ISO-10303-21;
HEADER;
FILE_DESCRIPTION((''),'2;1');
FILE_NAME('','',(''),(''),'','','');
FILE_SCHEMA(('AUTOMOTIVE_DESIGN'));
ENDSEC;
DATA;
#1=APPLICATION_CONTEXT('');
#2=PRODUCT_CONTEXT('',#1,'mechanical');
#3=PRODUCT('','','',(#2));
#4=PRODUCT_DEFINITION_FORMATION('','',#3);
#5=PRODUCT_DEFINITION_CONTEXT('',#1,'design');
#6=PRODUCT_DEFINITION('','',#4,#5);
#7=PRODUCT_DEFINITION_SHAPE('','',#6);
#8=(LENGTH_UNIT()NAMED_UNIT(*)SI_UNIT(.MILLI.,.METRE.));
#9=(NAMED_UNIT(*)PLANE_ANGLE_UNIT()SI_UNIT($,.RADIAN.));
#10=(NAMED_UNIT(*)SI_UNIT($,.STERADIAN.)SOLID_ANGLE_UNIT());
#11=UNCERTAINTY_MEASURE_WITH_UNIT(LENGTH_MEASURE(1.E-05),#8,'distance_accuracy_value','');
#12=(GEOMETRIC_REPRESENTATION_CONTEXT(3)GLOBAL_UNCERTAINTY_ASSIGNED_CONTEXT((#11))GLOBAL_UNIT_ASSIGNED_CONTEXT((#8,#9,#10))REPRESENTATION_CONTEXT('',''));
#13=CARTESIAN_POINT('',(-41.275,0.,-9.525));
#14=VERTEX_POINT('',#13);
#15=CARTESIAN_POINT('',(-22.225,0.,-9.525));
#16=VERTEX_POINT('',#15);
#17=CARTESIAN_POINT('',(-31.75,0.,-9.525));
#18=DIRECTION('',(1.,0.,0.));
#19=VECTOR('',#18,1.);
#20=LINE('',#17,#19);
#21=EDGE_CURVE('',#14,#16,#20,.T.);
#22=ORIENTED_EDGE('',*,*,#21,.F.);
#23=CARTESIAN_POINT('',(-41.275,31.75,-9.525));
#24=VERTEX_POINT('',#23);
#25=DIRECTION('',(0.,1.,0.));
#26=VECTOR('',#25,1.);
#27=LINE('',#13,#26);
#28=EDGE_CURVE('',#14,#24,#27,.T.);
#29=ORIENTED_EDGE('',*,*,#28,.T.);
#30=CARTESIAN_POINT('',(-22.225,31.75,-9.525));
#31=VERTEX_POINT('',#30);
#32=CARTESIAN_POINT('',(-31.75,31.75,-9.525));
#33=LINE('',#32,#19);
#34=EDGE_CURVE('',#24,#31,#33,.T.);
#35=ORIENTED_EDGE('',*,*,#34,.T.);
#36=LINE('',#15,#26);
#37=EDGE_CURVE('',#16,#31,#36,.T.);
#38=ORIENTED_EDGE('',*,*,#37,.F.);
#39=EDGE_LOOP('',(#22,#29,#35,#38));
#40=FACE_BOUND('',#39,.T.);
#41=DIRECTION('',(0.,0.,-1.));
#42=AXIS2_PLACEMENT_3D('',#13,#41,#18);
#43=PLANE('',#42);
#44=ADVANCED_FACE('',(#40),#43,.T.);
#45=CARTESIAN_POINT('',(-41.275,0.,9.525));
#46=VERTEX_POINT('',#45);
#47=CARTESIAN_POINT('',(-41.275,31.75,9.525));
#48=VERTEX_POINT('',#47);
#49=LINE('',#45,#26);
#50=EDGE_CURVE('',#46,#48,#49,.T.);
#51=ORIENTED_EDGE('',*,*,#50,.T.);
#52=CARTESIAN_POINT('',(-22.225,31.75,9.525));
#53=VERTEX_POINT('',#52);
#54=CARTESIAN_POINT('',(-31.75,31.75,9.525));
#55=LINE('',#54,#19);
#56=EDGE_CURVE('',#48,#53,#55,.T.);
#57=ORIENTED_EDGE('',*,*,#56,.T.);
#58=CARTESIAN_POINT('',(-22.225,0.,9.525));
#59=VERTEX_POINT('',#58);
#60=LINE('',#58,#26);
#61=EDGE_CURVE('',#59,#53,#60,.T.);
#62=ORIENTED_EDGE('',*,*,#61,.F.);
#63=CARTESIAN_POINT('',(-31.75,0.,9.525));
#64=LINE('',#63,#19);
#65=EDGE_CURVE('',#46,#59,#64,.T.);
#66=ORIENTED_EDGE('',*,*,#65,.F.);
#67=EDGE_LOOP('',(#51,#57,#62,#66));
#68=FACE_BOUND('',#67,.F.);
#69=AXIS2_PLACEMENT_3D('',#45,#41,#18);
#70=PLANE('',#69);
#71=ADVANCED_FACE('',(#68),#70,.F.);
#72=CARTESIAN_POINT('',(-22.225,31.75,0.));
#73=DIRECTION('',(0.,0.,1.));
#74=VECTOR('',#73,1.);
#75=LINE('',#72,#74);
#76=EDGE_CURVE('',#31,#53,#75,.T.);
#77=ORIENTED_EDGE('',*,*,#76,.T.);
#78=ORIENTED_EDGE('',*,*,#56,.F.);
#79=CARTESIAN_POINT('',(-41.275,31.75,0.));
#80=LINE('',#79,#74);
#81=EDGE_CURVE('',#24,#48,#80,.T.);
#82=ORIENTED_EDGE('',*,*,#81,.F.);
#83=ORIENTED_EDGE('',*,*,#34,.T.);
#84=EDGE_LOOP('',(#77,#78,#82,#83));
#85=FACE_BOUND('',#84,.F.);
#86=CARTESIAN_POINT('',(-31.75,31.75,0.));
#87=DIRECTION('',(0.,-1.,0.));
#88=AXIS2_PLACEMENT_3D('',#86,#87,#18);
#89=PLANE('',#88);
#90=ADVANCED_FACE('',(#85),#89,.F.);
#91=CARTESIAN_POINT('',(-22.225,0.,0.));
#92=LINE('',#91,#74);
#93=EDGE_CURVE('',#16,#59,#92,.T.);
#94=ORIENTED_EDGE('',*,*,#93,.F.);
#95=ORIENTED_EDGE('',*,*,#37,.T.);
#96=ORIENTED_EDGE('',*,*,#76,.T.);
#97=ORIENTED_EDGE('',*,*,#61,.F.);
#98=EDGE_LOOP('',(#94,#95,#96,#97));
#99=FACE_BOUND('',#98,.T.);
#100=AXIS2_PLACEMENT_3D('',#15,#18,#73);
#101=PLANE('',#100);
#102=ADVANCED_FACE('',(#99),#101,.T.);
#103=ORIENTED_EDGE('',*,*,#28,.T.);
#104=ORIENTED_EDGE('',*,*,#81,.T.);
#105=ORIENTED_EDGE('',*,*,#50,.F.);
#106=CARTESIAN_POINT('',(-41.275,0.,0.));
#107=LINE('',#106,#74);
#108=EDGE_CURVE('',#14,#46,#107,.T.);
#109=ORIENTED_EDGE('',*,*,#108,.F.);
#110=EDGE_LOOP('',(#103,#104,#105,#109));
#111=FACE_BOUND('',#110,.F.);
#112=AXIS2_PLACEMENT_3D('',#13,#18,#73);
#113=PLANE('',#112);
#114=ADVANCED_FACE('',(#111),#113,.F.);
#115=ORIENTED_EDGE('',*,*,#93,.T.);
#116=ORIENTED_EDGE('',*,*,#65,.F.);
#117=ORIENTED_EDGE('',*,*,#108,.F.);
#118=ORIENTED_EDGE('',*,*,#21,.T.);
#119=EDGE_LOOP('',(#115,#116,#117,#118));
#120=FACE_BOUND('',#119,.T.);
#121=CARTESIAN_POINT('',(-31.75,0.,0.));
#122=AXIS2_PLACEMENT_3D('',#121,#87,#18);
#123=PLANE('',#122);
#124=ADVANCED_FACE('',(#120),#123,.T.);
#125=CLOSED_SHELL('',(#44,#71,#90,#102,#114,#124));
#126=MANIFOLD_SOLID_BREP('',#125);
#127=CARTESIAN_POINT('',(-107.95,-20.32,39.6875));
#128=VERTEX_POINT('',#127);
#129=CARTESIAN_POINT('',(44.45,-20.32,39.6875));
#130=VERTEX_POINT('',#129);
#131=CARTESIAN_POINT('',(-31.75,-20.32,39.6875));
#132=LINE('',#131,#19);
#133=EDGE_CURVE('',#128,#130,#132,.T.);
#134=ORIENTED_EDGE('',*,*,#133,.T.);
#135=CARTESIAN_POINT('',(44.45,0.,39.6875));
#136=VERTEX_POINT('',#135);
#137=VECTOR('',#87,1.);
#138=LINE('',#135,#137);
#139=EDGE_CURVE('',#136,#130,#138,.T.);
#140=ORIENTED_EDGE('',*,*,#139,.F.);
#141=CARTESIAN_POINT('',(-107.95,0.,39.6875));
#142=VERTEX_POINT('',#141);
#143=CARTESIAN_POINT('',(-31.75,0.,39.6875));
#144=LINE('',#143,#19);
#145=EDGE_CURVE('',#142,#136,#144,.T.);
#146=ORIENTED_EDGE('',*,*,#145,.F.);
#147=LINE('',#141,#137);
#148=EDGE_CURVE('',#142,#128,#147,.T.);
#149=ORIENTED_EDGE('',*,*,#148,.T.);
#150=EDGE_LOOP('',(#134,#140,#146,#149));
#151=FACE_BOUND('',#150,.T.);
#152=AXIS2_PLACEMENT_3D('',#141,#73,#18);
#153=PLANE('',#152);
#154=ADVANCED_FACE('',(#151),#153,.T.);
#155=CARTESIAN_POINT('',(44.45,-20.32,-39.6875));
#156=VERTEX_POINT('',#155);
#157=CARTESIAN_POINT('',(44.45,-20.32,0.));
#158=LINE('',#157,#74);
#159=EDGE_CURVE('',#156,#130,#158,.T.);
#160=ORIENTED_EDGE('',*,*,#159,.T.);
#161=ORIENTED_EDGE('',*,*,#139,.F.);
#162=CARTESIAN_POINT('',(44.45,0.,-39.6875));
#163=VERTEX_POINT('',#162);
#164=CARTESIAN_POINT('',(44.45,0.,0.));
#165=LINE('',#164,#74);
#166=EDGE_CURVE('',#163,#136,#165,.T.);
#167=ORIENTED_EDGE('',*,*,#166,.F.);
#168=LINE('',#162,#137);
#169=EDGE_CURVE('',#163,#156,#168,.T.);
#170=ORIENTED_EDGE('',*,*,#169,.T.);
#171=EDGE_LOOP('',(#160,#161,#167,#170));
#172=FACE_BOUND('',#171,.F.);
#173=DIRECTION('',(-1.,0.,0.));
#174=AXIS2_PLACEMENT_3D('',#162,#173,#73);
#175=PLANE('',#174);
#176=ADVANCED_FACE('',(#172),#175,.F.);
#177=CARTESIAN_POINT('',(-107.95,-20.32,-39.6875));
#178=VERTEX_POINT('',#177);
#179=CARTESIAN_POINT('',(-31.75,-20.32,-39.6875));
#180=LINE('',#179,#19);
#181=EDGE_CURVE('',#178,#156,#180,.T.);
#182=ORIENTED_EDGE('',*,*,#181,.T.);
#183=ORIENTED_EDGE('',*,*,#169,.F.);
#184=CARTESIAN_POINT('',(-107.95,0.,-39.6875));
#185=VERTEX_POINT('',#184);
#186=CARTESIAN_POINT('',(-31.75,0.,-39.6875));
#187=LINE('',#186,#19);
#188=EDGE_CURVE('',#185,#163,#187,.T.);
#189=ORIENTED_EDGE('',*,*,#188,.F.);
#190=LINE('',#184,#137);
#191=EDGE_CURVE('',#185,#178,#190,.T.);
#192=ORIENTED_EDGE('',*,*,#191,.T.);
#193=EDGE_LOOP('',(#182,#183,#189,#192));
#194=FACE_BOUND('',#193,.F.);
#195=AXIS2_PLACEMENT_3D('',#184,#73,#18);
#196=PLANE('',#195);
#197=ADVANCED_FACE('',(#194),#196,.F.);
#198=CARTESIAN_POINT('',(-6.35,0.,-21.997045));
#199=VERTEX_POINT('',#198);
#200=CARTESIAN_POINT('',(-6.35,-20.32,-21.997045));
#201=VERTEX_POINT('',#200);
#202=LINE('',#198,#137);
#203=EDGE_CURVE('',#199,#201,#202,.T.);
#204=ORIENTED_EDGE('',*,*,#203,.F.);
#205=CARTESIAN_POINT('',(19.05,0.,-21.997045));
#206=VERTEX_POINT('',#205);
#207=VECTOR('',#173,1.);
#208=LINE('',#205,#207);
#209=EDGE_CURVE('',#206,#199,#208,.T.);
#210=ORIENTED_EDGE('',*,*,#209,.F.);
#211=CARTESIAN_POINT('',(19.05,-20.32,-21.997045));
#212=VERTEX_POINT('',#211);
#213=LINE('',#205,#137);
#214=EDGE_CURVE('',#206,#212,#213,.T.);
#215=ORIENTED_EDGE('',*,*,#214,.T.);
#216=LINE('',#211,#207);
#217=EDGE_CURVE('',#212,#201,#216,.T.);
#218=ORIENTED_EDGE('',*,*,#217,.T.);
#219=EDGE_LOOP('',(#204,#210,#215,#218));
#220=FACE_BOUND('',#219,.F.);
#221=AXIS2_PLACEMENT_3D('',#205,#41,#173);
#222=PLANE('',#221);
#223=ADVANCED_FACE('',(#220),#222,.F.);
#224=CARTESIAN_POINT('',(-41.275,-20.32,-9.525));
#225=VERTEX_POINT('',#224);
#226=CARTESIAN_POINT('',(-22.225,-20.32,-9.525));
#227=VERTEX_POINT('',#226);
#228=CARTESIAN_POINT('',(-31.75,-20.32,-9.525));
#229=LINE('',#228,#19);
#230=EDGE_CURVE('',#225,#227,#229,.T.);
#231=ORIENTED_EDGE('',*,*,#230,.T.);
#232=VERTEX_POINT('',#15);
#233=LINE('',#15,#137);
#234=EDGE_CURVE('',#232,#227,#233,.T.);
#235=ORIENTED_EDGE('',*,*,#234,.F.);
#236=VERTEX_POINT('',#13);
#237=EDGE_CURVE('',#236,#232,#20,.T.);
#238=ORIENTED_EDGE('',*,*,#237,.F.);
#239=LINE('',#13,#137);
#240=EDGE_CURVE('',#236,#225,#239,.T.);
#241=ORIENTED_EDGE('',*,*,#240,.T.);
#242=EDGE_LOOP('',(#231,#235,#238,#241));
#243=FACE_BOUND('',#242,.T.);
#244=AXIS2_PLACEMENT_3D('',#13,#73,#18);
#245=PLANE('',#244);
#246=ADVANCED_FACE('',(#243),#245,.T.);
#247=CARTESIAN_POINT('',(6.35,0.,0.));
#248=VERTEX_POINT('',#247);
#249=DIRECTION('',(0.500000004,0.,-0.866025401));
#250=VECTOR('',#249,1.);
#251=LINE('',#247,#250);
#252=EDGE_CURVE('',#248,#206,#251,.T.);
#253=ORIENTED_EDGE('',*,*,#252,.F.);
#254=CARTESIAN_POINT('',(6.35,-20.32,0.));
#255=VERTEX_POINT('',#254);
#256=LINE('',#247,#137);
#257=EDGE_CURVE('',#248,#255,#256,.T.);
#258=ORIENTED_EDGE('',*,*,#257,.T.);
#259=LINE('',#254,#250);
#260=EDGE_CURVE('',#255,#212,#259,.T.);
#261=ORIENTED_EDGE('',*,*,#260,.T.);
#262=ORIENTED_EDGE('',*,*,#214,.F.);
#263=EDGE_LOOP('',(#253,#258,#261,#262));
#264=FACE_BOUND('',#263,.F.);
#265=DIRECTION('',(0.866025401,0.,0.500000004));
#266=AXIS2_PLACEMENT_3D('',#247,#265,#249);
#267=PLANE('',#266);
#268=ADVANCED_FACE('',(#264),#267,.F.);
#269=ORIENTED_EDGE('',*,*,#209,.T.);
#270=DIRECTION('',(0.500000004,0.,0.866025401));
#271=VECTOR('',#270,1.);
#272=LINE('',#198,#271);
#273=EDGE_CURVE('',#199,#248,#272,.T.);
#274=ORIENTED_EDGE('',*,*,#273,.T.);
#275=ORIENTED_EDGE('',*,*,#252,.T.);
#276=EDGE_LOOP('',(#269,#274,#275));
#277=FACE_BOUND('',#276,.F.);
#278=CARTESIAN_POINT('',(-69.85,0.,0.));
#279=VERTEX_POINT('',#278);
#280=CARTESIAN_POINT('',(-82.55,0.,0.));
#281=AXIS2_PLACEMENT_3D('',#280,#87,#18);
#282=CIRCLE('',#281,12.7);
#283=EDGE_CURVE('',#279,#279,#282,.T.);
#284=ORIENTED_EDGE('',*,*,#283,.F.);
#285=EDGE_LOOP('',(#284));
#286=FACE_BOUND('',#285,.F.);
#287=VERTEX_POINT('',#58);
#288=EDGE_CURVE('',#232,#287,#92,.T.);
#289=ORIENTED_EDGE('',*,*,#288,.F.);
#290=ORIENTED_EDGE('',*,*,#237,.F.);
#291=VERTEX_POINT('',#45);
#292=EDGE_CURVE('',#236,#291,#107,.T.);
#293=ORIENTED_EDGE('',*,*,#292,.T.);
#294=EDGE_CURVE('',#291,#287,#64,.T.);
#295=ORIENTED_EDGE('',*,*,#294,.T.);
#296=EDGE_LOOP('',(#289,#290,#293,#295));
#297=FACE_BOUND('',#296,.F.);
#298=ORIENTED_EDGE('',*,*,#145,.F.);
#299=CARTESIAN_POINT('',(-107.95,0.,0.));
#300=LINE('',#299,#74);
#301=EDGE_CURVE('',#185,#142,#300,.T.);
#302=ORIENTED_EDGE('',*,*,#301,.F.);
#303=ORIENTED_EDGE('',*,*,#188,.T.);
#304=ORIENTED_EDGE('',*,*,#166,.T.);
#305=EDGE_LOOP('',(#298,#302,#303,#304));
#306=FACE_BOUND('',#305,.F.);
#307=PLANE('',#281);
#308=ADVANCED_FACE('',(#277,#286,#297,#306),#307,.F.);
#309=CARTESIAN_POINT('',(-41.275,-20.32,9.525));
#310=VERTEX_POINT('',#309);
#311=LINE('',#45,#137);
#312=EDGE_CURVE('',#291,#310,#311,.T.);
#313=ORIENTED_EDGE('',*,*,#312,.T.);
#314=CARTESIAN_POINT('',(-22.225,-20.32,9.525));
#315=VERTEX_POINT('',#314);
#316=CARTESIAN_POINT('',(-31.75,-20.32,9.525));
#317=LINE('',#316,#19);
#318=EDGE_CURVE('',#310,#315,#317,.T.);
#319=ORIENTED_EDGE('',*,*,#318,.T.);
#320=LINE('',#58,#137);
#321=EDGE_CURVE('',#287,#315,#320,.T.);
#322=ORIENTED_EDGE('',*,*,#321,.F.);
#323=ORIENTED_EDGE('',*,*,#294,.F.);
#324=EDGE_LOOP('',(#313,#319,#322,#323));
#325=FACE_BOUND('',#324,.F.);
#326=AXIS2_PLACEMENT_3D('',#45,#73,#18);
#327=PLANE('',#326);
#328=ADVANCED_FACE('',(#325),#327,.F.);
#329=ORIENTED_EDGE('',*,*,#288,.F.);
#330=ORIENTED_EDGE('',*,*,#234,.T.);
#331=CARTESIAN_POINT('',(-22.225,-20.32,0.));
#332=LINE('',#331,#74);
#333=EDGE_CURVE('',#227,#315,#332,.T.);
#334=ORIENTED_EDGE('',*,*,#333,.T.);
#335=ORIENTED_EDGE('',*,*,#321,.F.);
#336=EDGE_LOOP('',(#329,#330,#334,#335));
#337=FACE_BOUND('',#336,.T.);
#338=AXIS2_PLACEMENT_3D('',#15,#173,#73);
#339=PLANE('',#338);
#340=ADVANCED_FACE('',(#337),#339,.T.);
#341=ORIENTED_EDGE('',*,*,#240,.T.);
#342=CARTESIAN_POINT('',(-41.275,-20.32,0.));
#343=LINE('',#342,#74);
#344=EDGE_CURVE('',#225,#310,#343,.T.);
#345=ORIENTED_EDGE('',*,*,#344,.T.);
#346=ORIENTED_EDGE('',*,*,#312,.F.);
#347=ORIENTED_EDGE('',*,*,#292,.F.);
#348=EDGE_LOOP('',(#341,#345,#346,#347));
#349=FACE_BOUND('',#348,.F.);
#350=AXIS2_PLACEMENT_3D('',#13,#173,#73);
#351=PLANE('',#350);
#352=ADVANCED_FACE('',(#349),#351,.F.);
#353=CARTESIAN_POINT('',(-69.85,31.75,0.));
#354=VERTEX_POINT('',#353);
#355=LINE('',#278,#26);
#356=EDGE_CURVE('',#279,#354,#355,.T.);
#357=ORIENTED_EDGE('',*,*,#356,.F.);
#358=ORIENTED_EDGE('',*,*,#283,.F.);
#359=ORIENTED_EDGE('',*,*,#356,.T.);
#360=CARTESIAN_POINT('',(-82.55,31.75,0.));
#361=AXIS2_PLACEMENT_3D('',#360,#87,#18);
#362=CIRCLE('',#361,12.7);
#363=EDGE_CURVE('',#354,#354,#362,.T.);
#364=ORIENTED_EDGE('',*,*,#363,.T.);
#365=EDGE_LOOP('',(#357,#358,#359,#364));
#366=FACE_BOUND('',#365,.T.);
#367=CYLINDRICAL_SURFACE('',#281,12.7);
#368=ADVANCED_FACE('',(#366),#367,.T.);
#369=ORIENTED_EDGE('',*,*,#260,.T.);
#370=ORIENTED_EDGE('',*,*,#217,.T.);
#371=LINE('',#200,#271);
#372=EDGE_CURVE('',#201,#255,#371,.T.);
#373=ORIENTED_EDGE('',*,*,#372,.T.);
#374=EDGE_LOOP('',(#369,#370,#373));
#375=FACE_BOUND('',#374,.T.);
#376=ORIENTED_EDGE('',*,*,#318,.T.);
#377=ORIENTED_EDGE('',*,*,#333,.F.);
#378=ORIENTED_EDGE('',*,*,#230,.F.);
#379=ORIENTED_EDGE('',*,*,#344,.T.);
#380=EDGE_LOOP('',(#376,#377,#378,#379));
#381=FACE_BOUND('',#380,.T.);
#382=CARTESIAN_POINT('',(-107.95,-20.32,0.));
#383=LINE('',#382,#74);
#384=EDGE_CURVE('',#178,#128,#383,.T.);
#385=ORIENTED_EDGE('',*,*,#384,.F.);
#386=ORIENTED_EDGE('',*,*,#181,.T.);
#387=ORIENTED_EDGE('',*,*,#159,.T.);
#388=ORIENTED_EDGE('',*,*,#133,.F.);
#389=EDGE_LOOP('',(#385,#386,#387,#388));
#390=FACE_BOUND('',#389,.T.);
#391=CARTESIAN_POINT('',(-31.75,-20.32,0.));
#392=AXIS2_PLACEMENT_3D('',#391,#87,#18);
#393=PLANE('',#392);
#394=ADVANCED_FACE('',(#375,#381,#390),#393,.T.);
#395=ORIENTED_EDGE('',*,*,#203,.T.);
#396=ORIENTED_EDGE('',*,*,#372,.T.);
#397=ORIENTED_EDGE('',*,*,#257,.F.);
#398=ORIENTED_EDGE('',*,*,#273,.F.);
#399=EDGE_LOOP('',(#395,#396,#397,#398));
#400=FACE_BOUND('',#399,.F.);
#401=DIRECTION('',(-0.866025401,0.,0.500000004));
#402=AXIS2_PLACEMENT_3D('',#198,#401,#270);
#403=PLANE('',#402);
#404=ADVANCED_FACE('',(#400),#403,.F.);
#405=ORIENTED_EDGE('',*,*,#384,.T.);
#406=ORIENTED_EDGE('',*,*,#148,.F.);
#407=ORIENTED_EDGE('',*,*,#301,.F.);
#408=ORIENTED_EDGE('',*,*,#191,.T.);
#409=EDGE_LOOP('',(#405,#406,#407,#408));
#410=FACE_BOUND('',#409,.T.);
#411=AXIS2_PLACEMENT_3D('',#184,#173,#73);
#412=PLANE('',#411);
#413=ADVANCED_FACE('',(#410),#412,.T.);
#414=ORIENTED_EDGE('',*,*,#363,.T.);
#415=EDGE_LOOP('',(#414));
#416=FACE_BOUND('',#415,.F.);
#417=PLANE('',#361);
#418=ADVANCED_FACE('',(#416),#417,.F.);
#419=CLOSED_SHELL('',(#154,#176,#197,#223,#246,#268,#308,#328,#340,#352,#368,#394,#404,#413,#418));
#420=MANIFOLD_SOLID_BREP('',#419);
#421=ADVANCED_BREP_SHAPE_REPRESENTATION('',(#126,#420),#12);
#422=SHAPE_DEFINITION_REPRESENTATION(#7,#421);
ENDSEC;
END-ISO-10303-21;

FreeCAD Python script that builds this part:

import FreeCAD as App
import Part
import Sketcher
Q = App.Units.Quantity


def add_polygon(sketch, points):
    """Adds a closed chain of lines whose ends are joined by coincident constraints."""
    first, n = sketch.GeometryCount, len(points)
    for a, b in zip(points, points[1:] + points[:1]):
        sketch.addGeometry(Part.LineSegment(App.Vector(*a, 0), App.Vector(*b, 0)), False)
    for i in range(n):
        sketch.addConstraint(Sketcher.Constraint("Coincident", first + i, 2, first + (i + 1) % n, 1))

doc = App.newDocument("Part")
body = doc.addObject("PartDesign::Body", "Body")
body.AllowCompound = True

# Sketch on XZ plane
sketch1 = doc.addObject("Sketcher::SketchObject", "Sketch")
body.addObject(sketch1)
sketch1.AttachmentSupport = (doc.XZ_Plane, [""])
sketch1.MapMode = "FlatFace"
add_polygon(sketch1, [(-108, 40), (-108, -40), (44, -40), (44, 40)])  # lines 0-3
add_polygon(sketch1, [(19, -22), (-6, -22), (6, 0)])  # lines 4-6
sketch1.addGeometry(Part.Circle(App.Vector(-83, 0, 0), App.Vector(0, 0, 1), 13), False)  # 7
add_polygon(sketch1, [(-22, -10), (-41, -10), (-41, 10), (-22, 10)])  # lines 8-11
sketch1.addConstraint([
    Sketcher.Constraint("Vertical", 0),
    Sketcher.Constraint("Horizontal", 1),
    Sketcher.Constraint("Vertical", 2),
    Sketcher.Constraint("Horizontal", 3),
    Sketcher.Constraint("Horizontal", 4),
    Sketcher.Constraint("Horizontal", 8),
    Sketcher.Constraint("Vertical", 9),
    Sketcher.Constraint("Horizontal", 10),
    Sketcher.Constraint("Vertical", 11),
    Sketcher.Constraint("PointOnObject", 7, 3, -1),
    Sketcher.Constraint("PointOnObject", 5, 2, -1),
    Sketcher.Constraint("Equal", 10, 9),
    Sketcher.Constraint("Equal", 5, 6),
    Sketcher.Constraint("Diameter", 7, Q("1 in")),
    Sketcher.Constraint("DistanceX", 1, 1, 1, 2, Q("6 in")),
    Sketcher.Constraint("DistanceX", 4, 2, 4, 1, Q("1 in")),
    Sketcher.Constraint("Distance", 5, Q("1 in")),
    Sketcher.Constraint("DistanceX", 0, 2, 7, 3, Q("1 in")),
    Sketcher.Constraint("DistanceX", 4, 2, 1, 2, Q("2 in")),
    Sketcher.Constraint("DistanceX", 8, 2, 8, 1, Q("0.75 in")),
    Sketcher.Constraint("DistanceY", 0, 2, 0, 1, Q("3.125 in")),
    Sketcher.Constraint("DistanceX", 7, 3, -1, 1, Q("3.25 in")),
    Sketcher.Constraint("DistanceY", 0, 2, -1, 1, Q("1.5625 in")),
    Sketcher.Constraint("DistanceX", 8, 2, -1, 1, Q("1.625 in")),
    Sketcher.Constraint("DistanceY", 8, 2, -1, 1, Q("0.375 in")),
])
pad1 = doc.addObject("PartDesign::Pad", "Pad")
body.addObject(pad1)
pad1.Profile = sketch1
pad1.Length = Q("0.8 in")

# Sketch on XZ plane
sketch2 = doc.addObject("Sketcher::SketchObject", "Sketch001")
body.addObject(sketch2)
sketch2.AttachmentSupport = (doc.XZ_Plane, [""])
sketch2.MapMode = "FlatFace"
add_polygon(sketch2, [(-41, 10), (-41, -10), (-22, -10), (-22, 10)])  # lines 0-3
sketch2.addConstraint([
    Sketcher.Constraint("Vertical", 0),
    Sketcher.Constraint("Horizontal", 1),
    Sketcher.Constraint("Vertical", 2),
    Sketcher.Constraint("Horizontal", 3),
    Sketcher.Constraint("Equal", 3, 0),
    Sketcher.Constraint("DistanceX", 1, 1, 1, 2, Q("0.75 in")),
    Sketcher.Constraint("DistanceX", 0, 2, -1, 1, Q("1.625 in")),
    Sketcher.Constraint("DistanceY", 0, 2, -1, 1, Q("0.375 in")),
])
pad2 = doc.addObject("PartDesign::Pad", "Pad001")
body.addObject(pad2)
pad2.Profile = sketch2
pad2.Length = Q("1.25 in")
pad2.Reversed = True

# Sketch on XZ plane
sketch3 = doc.addObject("Sketcher::SketchObject", "Sketch002")
body.addObject(sketch3)
sketch3.AttachmentSupport = (doc.XZ_Plane, [""])
sketch3.MapMode = "FlatFace"
sketch3.addGeometry(Part.Circle(App.Vector(-83, 0, 0), App.Vector(0, 0, 1), 13), False)
sketch3.addConstraint([
    Sketcher.Constraint("PointOnObject", 0, 3, -1),
    Sketcher.Constraint("Diameter", 0, Q("1 in")),
    Sketcher.Constraint("DistanceX", 0, 3, -1, 1, Q("3.25 in")),
])
pad3 = doc.addObject("PartDesign::Pad", "Pad002")
body.addObject(pad3)
pad3.Profile = sketch3
pad3.Length = Q("0.8 in")

# Sketch on XZ plane
sketch4 = doc.addObject("Sketcher::SketchObject", "Sketch003")
body.addObject(sketch4)
sketch4.AttachmentSupport = (doc.XZ_Plane, [""])
sketch4.MapMode = "FlatFace"
sketch4.addGeometry(Part.Circle(App.Vector(-83, 0, 0), App.Vector(0, 0, 1), 13), False)
sketch4.addConstraint([
    Sketcher.Constraint("PointOnObject", 0, 3, -1),
    Sketcher.Constraint("Diameter", 0, Q("1 in")),
    Sketcher.Constraint("DistanceX", 0, 3, -1, 1, Q("3.25 in")),
])
pad4 = doc.addObject("PartDesign::Pad", "Pad003")
body.addObject(pad4)
pad4.Profile = sketch4
pad4.Length = Q("1.25 in")
pad4.Reversed = True

doc.recompute()
